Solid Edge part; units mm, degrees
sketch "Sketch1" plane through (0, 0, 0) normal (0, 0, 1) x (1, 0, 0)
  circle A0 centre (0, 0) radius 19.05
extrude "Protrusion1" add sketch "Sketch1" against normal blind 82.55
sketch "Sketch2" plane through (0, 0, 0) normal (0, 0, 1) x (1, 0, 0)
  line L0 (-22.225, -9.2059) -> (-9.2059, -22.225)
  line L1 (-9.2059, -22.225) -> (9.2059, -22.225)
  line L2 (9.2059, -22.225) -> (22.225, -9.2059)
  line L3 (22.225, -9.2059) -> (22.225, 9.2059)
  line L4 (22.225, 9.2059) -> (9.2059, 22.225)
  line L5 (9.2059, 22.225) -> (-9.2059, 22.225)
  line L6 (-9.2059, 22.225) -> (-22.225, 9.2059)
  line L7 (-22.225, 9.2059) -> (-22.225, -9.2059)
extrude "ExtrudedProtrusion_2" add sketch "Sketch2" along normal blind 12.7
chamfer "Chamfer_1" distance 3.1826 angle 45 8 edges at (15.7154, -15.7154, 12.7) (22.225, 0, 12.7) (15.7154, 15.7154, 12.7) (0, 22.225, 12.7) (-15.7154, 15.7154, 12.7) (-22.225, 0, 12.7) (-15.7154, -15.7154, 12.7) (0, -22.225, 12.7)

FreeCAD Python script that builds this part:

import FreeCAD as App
import Part
import Sketcher
Q = App.Units.Quantity


def edges_at(feature, points):
    """Names of the edges that pass closest to the given points."""
    edges = feature.Shape.Edges
    near = lambda p: min(range(len(edges)), key=lambda i: edges[i].distToShape(Part.Vertex(*p))[0])
    return sorted({f"Edge{near(p) + 1}" for p in points})


def add_polygon(sketch, points):
    """Adds a closed chain of lines whose ends are joined by coincident constraints."""
    first, n = sketch.GeometryCount, len(points)
    for a, b in zip(points, points[1:] + points[:1]):
        sketch.addGeometry(Part.LineSegment(App.Vector(*a, 0), App.Vector(*b, 0)), False)
    for i in range(n):
        sketch.addConstraint(Sketcher.Constraint("Coincident", first + i, 2, first + (i + 1) % n, 1))

doc = App.newDocument("Part")
body = doc.addObject("PartDesign::Body", "Body")

# Sketch on XY plane
sketch1 = body.newObject("Sketcher::SketchObject", "Sketch")
sketch1.AttachmentSupport = (doc.getObject("XY_Plane"), [""])
sketch1.MapMode = "FlatFace"
sketch1.addGeometry(Part.Circle(App.Vector(0, 0, 0), App.Vector(0, 0, 1), 19), False)
sketch1.addConstraint([
    Sketcher.Constraint("Coincident", 0, 3, -1, 1),
    Sketcher.Constraint("Diameter", 0, Q("1.5 in")),
])
pad1 = body.newObject("PartDesign::Pad", "Pad")
pad1.Profile = sketch1
pad1.Length = Q("3.25 in")
pad1.Reversed = True

# Sketch on XY plane
sketch2 = body.newObject("Sketcher::SketchObject", "Sketch001")
sketch2.AttachmentSupport = (doc.getObject("XY_Plane"), [""])
sketch2.MapMode = "FlatFace"
add_polygon(sketch2, [(-22, 9), (-22, -9), (-9, -22), (9, -22), (22, -9), (22, 9), (9, 22), (-9, 22)])  # lines 0-7
sketch2.addConstraint([
    Sketcher.Constraint("Vertical", 0),
    Sketcher.Constraint("Horizontal", 2),
    Sketcher.Constraint("Vertical", 4),
    Sketcher.Constraint("Horizontal", 6),
    Sketcher.Constraint("Symmetric", 0, 2, 4, 2, -1, 1),
    Sketcher.Constraint("Symmetric", 1, 2, 5, 2, -1, 1),
    Sketcher.Constraint("Perpendicular", 1, 3),
    Sketcher.Constraint("Perpendicular", 5, 7),
    Sketcher.Constraint("Horizontal", 0, 2, 3, 2),
    Sketcher.Constraint("Horizontal", 4, 2, 7, 2),
    Sketcher.Constraint("Vertical", 2, 2, 5, 2),
    Sketcher.Constraint("Equal", 6, 0),
    Sketcher.Constraint("DistanceX", 0, 2, 3, 2, Q("1.75 in")),
    Sketcher.Constraint("DistanceX", 2, 1, 2, 2, Q("18.4118 mm")),
])
pad2 = body.newObject("PartDesign::Pad", "Pad001")
pad2.Profile = sketch2
pad2.Length = Q("0.5 in")
doc.recompute()

chamfer = body.newObject("PartDesign::Chamfer", "Chamfer")
chamfer.Base = (pad2, edges_at(pad2, [
    (15.715, -15.715, 12.7),
    (22.225, 0, 12.7),
    (15.715, 15.715, 12.7),
    (0, 22.225, 12.7),
    (-15.715, 15.715, 12.7),
    (-22.225, 0, 12.7),
    (-15.715, -15.715, 12.7),
    (0, -22.225, 12.7),
]))
chamfer.Size = Q("0.1252992 in")

doc.recompute()
